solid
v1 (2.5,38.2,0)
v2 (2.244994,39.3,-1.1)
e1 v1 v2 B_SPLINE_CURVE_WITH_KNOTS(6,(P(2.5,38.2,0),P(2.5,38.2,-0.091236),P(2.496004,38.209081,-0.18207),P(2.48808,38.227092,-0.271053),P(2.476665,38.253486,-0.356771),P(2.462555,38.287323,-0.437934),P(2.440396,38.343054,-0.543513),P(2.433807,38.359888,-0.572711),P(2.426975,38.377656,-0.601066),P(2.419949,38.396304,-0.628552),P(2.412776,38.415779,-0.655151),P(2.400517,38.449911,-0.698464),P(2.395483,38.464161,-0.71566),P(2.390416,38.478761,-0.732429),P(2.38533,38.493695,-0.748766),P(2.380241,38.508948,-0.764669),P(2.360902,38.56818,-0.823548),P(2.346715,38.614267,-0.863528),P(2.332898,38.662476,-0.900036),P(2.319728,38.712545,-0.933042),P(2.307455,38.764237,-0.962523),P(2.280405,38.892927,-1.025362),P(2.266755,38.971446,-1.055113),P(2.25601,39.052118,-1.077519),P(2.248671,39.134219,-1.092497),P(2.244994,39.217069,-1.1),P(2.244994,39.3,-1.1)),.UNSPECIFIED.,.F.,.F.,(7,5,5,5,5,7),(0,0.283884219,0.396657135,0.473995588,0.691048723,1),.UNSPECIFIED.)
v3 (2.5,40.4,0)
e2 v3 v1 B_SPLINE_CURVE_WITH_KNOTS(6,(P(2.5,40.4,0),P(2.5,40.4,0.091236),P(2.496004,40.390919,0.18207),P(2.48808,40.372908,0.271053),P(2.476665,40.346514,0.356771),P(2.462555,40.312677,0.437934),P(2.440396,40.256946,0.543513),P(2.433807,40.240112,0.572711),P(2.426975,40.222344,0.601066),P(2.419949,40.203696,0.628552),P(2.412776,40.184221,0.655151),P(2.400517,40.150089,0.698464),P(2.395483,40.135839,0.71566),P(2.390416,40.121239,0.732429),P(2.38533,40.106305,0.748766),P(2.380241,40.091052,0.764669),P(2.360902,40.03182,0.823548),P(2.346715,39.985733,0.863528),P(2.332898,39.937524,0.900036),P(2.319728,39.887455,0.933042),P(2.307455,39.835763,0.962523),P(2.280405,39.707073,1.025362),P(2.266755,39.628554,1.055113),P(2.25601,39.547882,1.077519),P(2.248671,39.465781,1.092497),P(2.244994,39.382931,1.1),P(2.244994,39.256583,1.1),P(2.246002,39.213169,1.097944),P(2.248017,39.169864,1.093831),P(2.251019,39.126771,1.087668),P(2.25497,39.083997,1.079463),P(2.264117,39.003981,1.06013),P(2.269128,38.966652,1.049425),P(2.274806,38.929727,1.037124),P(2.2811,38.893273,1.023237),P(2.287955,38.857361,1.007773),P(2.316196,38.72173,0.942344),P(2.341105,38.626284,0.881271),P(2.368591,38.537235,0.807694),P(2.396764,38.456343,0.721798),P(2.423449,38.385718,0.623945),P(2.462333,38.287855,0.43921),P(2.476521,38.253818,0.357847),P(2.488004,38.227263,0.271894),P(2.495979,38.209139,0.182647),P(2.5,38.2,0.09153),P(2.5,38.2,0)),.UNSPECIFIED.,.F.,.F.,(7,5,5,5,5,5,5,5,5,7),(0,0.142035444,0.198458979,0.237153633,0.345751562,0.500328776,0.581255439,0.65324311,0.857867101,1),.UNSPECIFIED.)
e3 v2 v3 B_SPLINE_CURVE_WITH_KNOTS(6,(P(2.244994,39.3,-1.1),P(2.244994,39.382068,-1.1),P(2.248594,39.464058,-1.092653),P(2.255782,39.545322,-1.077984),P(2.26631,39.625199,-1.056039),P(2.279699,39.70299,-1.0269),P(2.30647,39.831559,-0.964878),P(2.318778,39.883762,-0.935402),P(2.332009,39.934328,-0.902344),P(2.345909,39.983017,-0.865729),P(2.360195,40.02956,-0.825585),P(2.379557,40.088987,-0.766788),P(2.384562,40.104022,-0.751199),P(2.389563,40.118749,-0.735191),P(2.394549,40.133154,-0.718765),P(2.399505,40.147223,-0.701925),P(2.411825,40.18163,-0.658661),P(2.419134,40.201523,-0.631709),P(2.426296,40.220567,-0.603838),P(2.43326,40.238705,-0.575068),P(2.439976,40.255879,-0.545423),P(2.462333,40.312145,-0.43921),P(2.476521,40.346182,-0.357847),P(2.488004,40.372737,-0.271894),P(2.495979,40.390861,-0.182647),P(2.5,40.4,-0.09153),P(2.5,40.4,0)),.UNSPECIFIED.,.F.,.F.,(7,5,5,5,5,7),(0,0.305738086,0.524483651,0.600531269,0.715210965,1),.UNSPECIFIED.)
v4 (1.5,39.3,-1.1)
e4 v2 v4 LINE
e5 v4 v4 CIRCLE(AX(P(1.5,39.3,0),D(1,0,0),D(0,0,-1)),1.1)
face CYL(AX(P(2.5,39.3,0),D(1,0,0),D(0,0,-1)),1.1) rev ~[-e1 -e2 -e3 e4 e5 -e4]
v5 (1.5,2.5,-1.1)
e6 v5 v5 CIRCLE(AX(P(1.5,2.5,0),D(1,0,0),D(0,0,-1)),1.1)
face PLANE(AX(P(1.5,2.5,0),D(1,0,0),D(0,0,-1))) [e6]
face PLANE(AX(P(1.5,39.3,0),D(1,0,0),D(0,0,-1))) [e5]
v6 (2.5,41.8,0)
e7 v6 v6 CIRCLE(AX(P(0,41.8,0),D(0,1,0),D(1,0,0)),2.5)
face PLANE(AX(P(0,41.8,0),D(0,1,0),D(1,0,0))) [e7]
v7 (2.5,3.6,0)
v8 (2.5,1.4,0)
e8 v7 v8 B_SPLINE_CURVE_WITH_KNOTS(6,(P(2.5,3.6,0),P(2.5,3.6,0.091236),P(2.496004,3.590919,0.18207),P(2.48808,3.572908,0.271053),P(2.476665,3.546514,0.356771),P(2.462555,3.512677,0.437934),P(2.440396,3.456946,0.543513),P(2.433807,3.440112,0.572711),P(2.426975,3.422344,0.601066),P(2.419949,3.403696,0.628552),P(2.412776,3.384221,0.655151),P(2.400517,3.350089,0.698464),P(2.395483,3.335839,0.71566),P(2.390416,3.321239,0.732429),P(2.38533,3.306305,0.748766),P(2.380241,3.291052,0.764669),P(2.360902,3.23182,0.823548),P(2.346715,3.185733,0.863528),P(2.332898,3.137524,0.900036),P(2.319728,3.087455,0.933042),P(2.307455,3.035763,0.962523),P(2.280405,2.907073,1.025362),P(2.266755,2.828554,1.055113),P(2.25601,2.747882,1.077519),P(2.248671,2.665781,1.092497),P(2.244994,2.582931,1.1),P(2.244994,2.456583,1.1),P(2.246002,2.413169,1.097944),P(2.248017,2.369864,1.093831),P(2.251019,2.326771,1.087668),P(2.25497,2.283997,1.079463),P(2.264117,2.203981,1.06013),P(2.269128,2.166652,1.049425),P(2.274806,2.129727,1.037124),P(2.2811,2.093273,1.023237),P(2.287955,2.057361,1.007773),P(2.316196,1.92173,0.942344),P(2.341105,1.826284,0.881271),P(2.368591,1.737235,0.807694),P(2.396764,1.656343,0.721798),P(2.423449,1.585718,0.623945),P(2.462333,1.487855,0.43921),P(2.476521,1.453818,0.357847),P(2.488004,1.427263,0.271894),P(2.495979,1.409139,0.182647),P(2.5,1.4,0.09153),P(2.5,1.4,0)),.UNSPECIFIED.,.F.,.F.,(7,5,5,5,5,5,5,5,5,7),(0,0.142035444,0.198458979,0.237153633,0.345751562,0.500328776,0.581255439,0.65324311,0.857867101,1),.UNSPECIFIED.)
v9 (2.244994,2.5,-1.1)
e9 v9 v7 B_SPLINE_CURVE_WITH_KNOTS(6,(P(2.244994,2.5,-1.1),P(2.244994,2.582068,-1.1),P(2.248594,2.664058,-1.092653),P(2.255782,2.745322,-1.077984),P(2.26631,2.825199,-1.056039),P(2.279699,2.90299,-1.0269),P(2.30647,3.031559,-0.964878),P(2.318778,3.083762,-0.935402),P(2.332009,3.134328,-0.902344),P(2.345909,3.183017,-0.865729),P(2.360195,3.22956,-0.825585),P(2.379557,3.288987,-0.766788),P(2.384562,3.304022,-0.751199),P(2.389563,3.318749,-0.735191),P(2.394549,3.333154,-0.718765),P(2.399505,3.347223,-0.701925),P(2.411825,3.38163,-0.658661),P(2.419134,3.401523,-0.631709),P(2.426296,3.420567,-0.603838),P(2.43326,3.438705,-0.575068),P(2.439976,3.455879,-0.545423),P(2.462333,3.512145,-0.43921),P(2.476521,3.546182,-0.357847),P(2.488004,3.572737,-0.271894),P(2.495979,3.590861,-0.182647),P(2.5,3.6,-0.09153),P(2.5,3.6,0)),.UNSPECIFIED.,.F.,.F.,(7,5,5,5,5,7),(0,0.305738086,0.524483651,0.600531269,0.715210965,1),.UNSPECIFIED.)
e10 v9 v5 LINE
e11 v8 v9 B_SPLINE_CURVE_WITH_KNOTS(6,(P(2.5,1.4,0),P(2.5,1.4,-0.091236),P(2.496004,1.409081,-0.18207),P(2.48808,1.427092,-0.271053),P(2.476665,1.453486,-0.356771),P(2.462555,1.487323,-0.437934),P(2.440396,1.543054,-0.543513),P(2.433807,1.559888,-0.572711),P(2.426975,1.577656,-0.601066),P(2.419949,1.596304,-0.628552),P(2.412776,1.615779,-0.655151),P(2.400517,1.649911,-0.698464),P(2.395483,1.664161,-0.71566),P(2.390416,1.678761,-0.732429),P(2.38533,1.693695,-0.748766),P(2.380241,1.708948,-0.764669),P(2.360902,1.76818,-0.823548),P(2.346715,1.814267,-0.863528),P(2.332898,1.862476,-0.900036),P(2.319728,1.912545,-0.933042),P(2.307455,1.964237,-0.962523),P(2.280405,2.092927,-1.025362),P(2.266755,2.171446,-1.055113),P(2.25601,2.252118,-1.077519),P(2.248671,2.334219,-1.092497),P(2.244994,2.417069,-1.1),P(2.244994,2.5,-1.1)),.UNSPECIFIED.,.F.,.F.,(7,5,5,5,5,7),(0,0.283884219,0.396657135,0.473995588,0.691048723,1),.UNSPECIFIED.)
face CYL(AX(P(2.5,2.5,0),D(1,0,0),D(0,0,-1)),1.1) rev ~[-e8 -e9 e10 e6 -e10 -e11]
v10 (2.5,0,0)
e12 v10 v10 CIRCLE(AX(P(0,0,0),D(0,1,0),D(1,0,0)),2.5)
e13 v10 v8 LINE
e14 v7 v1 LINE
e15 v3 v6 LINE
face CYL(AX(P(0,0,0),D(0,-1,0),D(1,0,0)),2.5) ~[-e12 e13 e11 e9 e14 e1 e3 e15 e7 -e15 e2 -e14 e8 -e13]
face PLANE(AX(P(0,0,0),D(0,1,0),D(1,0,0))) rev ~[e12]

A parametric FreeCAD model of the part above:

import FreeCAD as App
import Part
import Sketcher
from FreeCAD import Vector
Q = App.Units.Quantity

doc = App.newDocument("Part")
body = doc.addObject("PartDesign::Body", "Body")

sketch1 = doc.addObject("Sketcher::SketchObject", "Sketch")
body.addObject(sketch1)
sketch1.AttachmentSupport = (doc.XZ_Plane, [""])
sketch1.MapMode = "FlatFace"
sketch1.addGeometry(Part.Circle(Vector(0, 0, 0), Vector(0, 0, 1), 2.5), False)
sketch1.addConstraint([
    Sketcher.Constraint("Coincident", 0, 3, -1, 1),
    Sketcher.Constraint("Diameter", 0, Q("5 mm")),
])
pad1 = doc.addObject("PartDesign::Pad", "Pad")
body.addObject(pad1)
pad1.Profile = sketch1
pad1.Length = 41.8
pad1.Reversed = True

sketch2 = doc.addObject("Sketcher::SketchObject", "Sketch001")
body.addObject(sketch2)
sketch2.AttachmentSupport = (doc.YZ_Plane, [""])
sketch2.MapMode = "FlatFace"
sketch2.AttachmentOffset = App.Placement(Vector(0, 0, 2.5), App.Rotation())
sketch2.addGeometry([
    Part.Circle(Vector(39.3, 0, 0), Vector(0, 0, 1), 1.1),
    Part.Circle(Vector(2.5, 0, 0), Vector(0, 0, 1), 1.1),
], False)
sketch2.addConstraint([
    Sketcher.Constraint("Equal", 0, 1),
    Sketcher.Constraint("PointOnObject", 0, 3, -1),
    Sketcher.Constraint("PointOnObject", 1, 3, -1),
    Sketcher.Constraint("Diameter", 0, Q("2.2 mm")),
    Sketcher.Constraint("DistanceX", -1, 1, 0, 3, Q("39.3 mm")),
    Sketcher.Constraint("DistanceX", -1, 1, 1, 3, Q("2.5 mm")),
])
pocket1 = doc.addObject("PartDesign::Pocket", "Pocket")
body.addObject(pocket1)
pocket1.Profile = sketch2
pocket1.Length = 1

doc.recompute()
